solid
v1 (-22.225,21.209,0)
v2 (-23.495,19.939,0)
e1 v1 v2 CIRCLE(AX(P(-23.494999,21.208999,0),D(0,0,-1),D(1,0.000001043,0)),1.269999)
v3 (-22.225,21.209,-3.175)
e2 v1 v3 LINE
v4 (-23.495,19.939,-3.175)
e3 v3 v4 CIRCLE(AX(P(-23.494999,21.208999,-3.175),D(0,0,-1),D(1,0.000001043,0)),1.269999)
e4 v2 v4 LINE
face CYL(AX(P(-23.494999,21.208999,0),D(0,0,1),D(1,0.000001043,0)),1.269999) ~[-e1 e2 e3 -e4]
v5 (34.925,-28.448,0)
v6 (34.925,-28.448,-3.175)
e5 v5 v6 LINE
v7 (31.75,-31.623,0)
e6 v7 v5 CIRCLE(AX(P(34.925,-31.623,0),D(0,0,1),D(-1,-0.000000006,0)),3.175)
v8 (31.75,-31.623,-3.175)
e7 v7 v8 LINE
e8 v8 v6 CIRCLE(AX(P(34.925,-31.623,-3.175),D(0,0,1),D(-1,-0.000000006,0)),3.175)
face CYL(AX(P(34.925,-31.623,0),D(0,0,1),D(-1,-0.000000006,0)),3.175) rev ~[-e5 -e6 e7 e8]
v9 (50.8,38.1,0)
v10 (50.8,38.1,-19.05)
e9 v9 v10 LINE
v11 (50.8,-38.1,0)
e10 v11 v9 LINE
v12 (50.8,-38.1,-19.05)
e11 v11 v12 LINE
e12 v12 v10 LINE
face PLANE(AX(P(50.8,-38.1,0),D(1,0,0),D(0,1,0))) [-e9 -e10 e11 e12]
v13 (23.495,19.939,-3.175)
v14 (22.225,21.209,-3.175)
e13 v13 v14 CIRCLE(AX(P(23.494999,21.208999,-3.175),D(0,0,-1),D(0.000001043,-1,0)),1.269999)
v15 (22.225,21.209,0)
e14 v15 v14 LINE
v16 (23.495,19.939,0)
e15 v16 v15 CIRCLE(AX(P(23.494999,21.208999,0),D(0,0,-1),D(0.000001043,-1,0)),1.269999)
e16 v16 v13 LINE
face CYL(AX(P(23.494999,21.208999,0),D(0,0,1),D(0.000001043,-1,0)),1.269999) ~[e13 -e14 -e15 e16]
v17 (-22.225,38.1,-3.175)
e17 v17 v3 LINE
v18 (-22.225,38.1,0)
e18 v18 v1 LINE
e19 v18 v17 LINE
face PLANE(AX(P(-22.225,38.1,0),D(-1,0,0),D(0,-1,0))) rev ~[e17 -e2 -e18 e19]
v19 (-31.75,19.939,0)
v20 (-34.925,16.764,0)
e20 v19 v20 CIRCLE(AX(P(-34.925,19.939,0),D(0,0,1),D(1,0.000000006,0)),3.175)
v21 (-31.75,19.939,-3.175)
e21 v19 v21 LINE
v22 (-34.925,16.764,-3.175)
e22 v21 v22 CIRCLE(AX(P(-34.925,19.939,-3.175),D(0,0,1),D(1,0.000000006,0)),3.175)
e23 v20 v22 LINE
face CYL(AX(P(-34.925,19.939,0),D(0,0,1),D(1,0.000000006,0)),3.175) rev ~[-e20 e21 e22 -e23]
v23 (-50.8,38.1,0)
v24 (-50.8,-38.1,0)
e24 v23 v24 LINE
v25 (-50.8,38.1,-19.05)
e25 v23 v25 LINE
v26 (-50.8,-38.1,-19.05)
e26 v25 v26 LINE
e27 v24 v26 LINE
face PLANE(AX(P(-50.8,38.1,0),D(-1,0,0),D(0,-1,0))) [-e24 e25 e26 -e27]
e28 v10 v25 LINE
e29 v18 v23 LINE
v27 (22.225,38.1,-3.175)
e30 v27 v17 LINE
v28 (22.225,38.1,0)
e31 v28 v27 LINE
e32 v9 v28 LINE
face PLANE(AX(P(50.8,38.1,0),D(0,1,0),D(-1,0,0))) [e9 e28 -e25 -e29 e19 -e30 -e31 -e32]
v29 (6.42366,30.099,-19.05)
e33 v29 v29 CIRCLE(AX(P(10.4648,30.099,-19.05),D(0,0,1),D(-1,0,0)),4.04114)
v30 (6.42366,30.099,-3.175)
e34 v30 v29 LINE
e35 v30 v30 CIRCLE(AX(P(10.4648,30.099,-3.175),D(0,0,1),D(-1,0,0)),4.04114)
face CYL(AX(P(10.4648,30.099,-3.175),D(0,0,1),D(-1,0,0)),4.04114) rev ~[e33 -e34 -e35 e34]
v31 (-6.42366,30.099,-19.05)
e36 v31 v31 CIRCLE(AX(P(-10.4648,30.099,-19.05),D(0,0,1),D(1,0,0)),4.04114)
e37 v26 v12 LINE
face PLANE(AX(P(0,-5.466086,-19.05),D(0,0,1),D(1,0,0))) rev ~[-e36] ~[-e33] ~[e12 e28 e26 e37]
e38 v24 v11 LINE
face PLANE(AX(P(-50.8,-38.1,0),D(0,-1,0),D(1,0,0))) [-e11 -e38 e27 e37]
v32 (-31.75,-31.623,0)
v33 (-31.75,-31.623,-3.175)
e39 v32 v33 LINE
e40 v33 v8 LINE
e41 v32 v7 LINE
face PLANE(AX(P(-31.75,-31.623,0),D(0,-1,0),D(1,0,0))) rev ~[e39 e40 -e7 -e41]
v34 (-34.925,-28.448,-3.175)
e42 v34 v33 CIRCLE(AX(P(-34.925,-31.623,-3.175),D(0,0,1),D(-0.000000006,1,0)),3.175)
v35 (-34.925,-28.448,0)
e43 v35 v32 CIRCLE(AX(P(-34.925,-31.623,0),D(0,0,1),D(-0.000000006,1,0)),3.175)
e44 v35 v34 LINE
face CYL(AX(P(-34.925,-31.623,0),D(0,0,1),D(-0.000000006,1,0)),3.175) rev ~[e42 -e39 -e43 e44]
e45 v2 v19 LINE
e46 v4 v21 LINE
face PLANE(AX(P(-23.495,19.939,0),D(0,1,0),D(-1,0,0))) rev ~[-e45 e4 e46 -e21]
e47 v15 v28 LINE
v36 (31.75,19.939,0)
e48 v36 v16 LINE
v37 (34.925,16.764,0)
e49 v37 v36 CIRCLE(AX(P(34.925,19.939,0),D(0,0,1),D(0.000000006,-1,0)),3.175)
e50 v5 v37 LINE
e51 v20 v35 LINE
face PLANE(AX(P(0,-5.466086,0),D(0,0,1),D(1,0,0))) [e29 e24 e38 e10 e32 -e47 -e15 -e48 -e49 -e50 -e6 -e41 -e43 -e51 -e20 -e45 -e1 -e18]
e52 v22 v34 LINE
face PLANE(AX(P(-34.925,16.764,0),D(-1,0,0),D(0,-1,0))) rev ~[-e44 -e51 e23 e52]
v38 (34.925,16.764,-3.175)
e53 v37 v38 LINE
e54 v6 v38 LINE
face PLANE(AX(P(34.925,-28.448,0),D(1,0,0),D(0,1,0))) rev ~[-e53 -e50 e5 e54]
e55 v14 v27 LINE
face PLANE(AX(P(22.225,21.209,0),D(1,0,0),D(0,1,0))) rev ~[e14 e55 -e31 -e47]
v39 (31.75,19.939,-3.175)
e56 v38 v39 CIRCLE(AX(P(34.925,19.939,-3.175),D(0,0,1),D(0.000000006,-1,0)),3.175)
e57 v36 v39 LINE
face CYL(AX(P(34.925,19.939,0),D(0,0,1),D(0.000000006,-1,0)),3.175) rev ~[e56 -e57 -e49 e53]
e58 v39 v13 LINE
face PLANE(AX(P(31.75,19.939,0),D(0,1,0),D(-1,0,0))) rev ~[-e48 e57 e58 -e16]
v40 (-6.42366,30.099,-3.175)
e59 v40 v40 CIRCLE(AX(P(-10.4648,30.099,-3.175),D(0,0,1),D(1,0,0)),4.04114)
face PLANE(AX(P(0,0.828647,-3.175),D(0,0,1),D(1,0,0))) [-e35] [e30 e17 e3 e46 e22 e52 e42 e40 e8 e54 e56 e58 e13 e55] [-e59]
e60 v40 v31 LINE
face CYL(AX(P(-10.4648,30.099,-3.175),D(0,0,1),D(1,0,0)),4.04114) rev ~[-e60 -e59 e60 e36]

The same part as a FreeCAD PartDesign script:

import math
import FreeCAD as App
import Part
import Sketcher
from FreeCAD import Vector
Q = App.Units.Quantity

doc = App.newDocument("Part")
body = doc.addObject("PartDesign::Body", "Body")

# Sketch on XY plane
sketch1 = body.newObject("Sketcher::SketchObject", "Sketch")
sketch1.AttachmentSupport = (doc.getObject("XY_Plane"), [""])
sketch1.MapMode = "FlatFace"
sketch1.addGeometry(Part.LineSegment(Vector(51, -38, 0), Vector(51, 38, 0)), False)
sketch1.addGeometry(Part.LineSegment(Vector(51, 38, 0), Vector(-51, 38, 0)), False)
sketch1.addGeometry(Part.LineSegment(Vector(-51, 38, 0), Vector(-51, -38, 0)), False)
sketch1.addGeometry(Part.LineSegment(Vector(-51, -38, 0), Vector(51, -38, 0)), False)
sketch1.addConstraint(Sketcher.Constraint("Coincident", 0, 2, 1, 1))
sketch1.addConstraint(Sketcher.Constraint("Coincident", 1, 2, 2, 1))
sketch1.addConstraint(Sketcher.Constraint("Coincident", 2, 2, 3, 1))
sketch1.addConstraint(Sketcher.Constraint("Coincident", 3, 2, 0, 1))
sketch1.addConstraint(Sketcher.Constraint("Vertical", 0))
sketch1.addConstraint(Sketcher.Constraint("Horizontal", 1))
sketch1.addConstraint(Sketcher.Constraint("Vertical", 2))
sketch1.addConstraint(Sketcher.Constraint("Horizontal", 3))
sketch1.addConstraint(Sketcher.Constraint("Symmetric", 0, 2, 2, 2, -1, 1))
sketch1.addConstraint(Sketcher.Constraint("DistanceX", 1, 2, 1, 1, Q("4 in")))
sketch1.addConstraint(Sketcher.Constraint("DistanceY", 0, 1, 0, 2, Q("3 in")))
pad1 = body.newObject("PartDesign::Pad", "Pad")
pad1.Profile = sketch1
pad1.Length = Q("0.75 in")
pad1.Reversed = True

# Sketch on XY plane
sketch2 = body.newObject("Sketcher::SketchObject", "Sketch001")
sketch2.AttachmentSupport = (doc.getObject("XY_Plane"), [""])
sketch2.MapMode = "FlatFace"
sketch2.addGeometry(Part.LineSegment(Vector(22.2, 21.2, 0), Vector(22.2, 38.1, 0)), False)
sketch2.addGeometry(Part.LineSegment(Vector(22.2, 38.1, 0), Vector(-22.2, 38.1, 0)), False)
sketch2.addGeometry(Part.LineSegment(Vector(-22.2, 38.1, 0), Vector(-22.2, 21.2, 0)), False)
sketch2.addGeometry(Part.ArcOfCircle(Part.Circle(Vector(-23.5, 21.2, 0), Vector(0, 0, 1), 1.3), math.radians(-90), math.radians(0)), False)
sketch2.addGeometry(Part.LineSegment(Vector(-23.5, 19.9, 0), Vector(-31.8, 19.9, 0)), False)
sketch2.addGeometry(Part.ArcOfCircle(Part.Circle(Vector(-34.9, 19.9, 0), Vector(0, 0, 1), 3.2), math.radians(0), math.radians(270)), False)
sketch2.addGeometry(Part.LineSegment(Vector(-34.9, 16.8, 0), Vector(-34.9, -28.4, 0)), False)
sketch2.addGeometry(Part.ArcOfCircle(Part.Circle(Vector(-34.9, -31.6, 0), Vector(0, 0, 1), 3.2), math.radians(90), math.radians(360)), False)
sketch2.addGeometry(Part.LineSegment(Vector(-31.8, -31.6, 0), Vector(31.8, -31.6, 0)), False)
sketch2.addGeometry(Part.ArcOfCircle(Part.Circle(Vector(34.9, -31.6, 0), Vector(0, 0, 1), 3.2), math.radians(-180), math.radians(90)), False)
sketch2.addGeometry(Part.LineSegment(Vector(34.9, -28.4, 0), Vector(34.9, 16.8, 0)), False)
sketch2.addGeometry(Part.ArcOfCircle(Part.Circle(Vector(34.9, 19.9, 0), Vector(0, 0, 1), 3.2), math.radians(-90), math.radians(180)), False)
sketch2.addGeometry(Part.LineSegment(Vector(31.8, 19.9, 0), Vector(23.5, 19.9, 0)), False)
sketch2.addGeometry(Part.ArcOfCircle(Part.Circle(Vector(23.5, 21.2, 0), Vector(0, 0, 1), 1.3), math.radians(180), math.radians(270)), False)
sketch2.addConstraint(Sketcher.Constraint("Coincident", 0, 2, 1, 1))
sketch2.addConstraint(Sketcher.Constraint("Coincident", 1, 2, 2, 1))
sketch2.addConstraint(Sketcher.Constraint("Tangent", 2, 2, 3, 2))
sketch2.addConstraint(Sketcher.Constraint("Tangent", 3, 1, 4, 1))
sketch2.addConstraint(Sketcher.Constraint("Coincident", 4, 2, 5, 1))
sketch2.addConstraint(Sketcher.Constraint("Coincident", 5, 2, 6, 1))
sketch2.addConstraint(Sketcher.Constraint("Coincident", 6, 2, 7, 1))
sketch2.addConstraint(Sketcher.Constraint("Coincident", 7, 2, 8, 1))
sketch2.addConstraint(Sketcher.Constraint("Coincident", 8, 2, 9, 1))
sketch2.addConstraint(Sketcher.Constraint("Coincident", 9, 2, 10, 1))
sketch2.addConstraint(Sketcher.Constraint("Coincident", 10, 2, 11, 1))
sketch2.addConstraint(Sketcher.Constraint("Coincident", 11, 2, 12, 1))
sketch2.addConstraint(Sketcher.Constraint("Tangent", 12, 2, 13, 2))
sketch2.addConstraint(Sketcher.Constraint("Tangent", 13, 1, 0, 1))
sketch2.addConstraint(Sketcher.Constraint("Vertical", 0))
sketch2.addConstraint(Sketcher.Constraint("Horizontal", 1))
sketch2.addConstraint(Sketcher.Constraint("Vertical", 2))
sketch2.addConstraint(Sketcher.Constraint("Horizontal", 4))
sketch2.addConstraint(Sketcher.Constraint("Vertical", 6))
sketch2.addConstraint(Sketcher.Constraint("Horizontal", 8))
sketch2.addConstraint(Sketcher.Constraint("Vertical", 10))
sketch2.addConstraint(Sketcher.Constraint("Horizontal", 12))
sketch2.addConstraint(Sketcher.Constraint("Equal", 5, 7))
sketch2.addConstraint(Sketcher.Constraint("Equal", 7, 9))
sketch2.addConstraint(Sketcher.Constraint("Equal", 9, 11))
sketch2.addConstraint(Sketcher.Constraint("Equal", 3, 13))
sketch2.addConstraint(Sketcher.Constraint("Symmetric", 7, 3, 9, 3, -2))
sketch2.addConstraint(Sketcher.Constraint("Symmetric", 5, 3, 11, 3, -2))
sketch2.addConstraint(Sketcher.Constraint("Symmetric", 3, 3, 13, 3, -2))
sketch2.addConstraint(Sketcher.Constraint("Horizontal", 11, 3, 3, 1))
sketch2.addConstraint(Sketcher.Constraint("Horizontal", 9, 3, 7, 2))
sketch2.addConstraint(Sketcher.Constraint("Vertical", 5, 3, 7, 3))
sketch2.addConstraint(Sketcher.Constraint("Vertical", 7, 3, 5, 2))
sketch2.addConstraint(Sketcher.Constraint("Vertical", 11, 3, 9, 2))
sketch2.addConstraint(Sketcher.Constraint("Radius", 3, Q("0.0499999 in")))
sketch2.addConstraint(Sketcher.Constraint("DistanceX", 8, 1, 8, 2, Q("2.5 in")))
sketch2.addConstraint(Sketcher.Constraint("Radius", 5, Q("0.125 in")))
sketch2.addConstraint(Sketcher.Constraint("DistanceX", 1, 2, 1, 1, Q("1.75 in")))
sketch2.addConstraint(Sketcher.Constraint("DistanceY", 6, 2, 6, 1, Q("1.78 in")))
sketch2.addConstraint(Sketcher.Constraint("DistanceY", -1, 1, 0, 2, Q("1.5 in")))
sketch2.addConstraint(Sketcher.Constraint("DistanceY", 0, 1, 0, 2, Q("0.665 in")))
pocket1 = body.newObject("PartDesign::Pocket", "Pocket")
pocket1.Profile = sketch2
pocket1.Length = Q("0.125 in")

# Sketch on XY plane
sketch3 = body.newObject("Sketcher::SketchObject", "Sketch002")
sketch3.AttachmentSupport = (doc.getObject("XY_Plane"), [""])
sketch3.MapMode = "FlatFace"
sketch3.AttachmentOffset = App.Placement(Vector(0, 0, -0.125 * 25.4), App.Rotation())
sketch3.addGeometry(Part.Circle(Vector(10.5, 30.1, 0), Vector(0, 0, 1), 4), False)
sketch3.addGeometry(Part.Circle(Vector(-10.5, 30.1, 0), Vector(0, 0, 1), 4), False)
sketch3.addConstraint(Sketcher.Constraint("Equal", 0, 1))
sketch3.addConstraint(Sketcher.Constraint("Symmetric", 0, 3, 1, 3, -2))
sketch3.addConstraint(Sketcher.Constraint("Diameter", 0, Q("0.3182 in")))
sketch3.addConstraint(Sketcher.Constraint("DistanceX", -1, 1, 0, 3, Q("0.412 in")))
sketch3.addConstraint(Sketcher.Constraint("DistanceY", -1, 1, 0, 3, Q("1.185 in")))
pocket2 = body.newObject("PartDesign::Pocket", "Pocket001")
pocket2.Profile = sketch3
pocket2.Length = Q("1 in")

doc.recompute()
